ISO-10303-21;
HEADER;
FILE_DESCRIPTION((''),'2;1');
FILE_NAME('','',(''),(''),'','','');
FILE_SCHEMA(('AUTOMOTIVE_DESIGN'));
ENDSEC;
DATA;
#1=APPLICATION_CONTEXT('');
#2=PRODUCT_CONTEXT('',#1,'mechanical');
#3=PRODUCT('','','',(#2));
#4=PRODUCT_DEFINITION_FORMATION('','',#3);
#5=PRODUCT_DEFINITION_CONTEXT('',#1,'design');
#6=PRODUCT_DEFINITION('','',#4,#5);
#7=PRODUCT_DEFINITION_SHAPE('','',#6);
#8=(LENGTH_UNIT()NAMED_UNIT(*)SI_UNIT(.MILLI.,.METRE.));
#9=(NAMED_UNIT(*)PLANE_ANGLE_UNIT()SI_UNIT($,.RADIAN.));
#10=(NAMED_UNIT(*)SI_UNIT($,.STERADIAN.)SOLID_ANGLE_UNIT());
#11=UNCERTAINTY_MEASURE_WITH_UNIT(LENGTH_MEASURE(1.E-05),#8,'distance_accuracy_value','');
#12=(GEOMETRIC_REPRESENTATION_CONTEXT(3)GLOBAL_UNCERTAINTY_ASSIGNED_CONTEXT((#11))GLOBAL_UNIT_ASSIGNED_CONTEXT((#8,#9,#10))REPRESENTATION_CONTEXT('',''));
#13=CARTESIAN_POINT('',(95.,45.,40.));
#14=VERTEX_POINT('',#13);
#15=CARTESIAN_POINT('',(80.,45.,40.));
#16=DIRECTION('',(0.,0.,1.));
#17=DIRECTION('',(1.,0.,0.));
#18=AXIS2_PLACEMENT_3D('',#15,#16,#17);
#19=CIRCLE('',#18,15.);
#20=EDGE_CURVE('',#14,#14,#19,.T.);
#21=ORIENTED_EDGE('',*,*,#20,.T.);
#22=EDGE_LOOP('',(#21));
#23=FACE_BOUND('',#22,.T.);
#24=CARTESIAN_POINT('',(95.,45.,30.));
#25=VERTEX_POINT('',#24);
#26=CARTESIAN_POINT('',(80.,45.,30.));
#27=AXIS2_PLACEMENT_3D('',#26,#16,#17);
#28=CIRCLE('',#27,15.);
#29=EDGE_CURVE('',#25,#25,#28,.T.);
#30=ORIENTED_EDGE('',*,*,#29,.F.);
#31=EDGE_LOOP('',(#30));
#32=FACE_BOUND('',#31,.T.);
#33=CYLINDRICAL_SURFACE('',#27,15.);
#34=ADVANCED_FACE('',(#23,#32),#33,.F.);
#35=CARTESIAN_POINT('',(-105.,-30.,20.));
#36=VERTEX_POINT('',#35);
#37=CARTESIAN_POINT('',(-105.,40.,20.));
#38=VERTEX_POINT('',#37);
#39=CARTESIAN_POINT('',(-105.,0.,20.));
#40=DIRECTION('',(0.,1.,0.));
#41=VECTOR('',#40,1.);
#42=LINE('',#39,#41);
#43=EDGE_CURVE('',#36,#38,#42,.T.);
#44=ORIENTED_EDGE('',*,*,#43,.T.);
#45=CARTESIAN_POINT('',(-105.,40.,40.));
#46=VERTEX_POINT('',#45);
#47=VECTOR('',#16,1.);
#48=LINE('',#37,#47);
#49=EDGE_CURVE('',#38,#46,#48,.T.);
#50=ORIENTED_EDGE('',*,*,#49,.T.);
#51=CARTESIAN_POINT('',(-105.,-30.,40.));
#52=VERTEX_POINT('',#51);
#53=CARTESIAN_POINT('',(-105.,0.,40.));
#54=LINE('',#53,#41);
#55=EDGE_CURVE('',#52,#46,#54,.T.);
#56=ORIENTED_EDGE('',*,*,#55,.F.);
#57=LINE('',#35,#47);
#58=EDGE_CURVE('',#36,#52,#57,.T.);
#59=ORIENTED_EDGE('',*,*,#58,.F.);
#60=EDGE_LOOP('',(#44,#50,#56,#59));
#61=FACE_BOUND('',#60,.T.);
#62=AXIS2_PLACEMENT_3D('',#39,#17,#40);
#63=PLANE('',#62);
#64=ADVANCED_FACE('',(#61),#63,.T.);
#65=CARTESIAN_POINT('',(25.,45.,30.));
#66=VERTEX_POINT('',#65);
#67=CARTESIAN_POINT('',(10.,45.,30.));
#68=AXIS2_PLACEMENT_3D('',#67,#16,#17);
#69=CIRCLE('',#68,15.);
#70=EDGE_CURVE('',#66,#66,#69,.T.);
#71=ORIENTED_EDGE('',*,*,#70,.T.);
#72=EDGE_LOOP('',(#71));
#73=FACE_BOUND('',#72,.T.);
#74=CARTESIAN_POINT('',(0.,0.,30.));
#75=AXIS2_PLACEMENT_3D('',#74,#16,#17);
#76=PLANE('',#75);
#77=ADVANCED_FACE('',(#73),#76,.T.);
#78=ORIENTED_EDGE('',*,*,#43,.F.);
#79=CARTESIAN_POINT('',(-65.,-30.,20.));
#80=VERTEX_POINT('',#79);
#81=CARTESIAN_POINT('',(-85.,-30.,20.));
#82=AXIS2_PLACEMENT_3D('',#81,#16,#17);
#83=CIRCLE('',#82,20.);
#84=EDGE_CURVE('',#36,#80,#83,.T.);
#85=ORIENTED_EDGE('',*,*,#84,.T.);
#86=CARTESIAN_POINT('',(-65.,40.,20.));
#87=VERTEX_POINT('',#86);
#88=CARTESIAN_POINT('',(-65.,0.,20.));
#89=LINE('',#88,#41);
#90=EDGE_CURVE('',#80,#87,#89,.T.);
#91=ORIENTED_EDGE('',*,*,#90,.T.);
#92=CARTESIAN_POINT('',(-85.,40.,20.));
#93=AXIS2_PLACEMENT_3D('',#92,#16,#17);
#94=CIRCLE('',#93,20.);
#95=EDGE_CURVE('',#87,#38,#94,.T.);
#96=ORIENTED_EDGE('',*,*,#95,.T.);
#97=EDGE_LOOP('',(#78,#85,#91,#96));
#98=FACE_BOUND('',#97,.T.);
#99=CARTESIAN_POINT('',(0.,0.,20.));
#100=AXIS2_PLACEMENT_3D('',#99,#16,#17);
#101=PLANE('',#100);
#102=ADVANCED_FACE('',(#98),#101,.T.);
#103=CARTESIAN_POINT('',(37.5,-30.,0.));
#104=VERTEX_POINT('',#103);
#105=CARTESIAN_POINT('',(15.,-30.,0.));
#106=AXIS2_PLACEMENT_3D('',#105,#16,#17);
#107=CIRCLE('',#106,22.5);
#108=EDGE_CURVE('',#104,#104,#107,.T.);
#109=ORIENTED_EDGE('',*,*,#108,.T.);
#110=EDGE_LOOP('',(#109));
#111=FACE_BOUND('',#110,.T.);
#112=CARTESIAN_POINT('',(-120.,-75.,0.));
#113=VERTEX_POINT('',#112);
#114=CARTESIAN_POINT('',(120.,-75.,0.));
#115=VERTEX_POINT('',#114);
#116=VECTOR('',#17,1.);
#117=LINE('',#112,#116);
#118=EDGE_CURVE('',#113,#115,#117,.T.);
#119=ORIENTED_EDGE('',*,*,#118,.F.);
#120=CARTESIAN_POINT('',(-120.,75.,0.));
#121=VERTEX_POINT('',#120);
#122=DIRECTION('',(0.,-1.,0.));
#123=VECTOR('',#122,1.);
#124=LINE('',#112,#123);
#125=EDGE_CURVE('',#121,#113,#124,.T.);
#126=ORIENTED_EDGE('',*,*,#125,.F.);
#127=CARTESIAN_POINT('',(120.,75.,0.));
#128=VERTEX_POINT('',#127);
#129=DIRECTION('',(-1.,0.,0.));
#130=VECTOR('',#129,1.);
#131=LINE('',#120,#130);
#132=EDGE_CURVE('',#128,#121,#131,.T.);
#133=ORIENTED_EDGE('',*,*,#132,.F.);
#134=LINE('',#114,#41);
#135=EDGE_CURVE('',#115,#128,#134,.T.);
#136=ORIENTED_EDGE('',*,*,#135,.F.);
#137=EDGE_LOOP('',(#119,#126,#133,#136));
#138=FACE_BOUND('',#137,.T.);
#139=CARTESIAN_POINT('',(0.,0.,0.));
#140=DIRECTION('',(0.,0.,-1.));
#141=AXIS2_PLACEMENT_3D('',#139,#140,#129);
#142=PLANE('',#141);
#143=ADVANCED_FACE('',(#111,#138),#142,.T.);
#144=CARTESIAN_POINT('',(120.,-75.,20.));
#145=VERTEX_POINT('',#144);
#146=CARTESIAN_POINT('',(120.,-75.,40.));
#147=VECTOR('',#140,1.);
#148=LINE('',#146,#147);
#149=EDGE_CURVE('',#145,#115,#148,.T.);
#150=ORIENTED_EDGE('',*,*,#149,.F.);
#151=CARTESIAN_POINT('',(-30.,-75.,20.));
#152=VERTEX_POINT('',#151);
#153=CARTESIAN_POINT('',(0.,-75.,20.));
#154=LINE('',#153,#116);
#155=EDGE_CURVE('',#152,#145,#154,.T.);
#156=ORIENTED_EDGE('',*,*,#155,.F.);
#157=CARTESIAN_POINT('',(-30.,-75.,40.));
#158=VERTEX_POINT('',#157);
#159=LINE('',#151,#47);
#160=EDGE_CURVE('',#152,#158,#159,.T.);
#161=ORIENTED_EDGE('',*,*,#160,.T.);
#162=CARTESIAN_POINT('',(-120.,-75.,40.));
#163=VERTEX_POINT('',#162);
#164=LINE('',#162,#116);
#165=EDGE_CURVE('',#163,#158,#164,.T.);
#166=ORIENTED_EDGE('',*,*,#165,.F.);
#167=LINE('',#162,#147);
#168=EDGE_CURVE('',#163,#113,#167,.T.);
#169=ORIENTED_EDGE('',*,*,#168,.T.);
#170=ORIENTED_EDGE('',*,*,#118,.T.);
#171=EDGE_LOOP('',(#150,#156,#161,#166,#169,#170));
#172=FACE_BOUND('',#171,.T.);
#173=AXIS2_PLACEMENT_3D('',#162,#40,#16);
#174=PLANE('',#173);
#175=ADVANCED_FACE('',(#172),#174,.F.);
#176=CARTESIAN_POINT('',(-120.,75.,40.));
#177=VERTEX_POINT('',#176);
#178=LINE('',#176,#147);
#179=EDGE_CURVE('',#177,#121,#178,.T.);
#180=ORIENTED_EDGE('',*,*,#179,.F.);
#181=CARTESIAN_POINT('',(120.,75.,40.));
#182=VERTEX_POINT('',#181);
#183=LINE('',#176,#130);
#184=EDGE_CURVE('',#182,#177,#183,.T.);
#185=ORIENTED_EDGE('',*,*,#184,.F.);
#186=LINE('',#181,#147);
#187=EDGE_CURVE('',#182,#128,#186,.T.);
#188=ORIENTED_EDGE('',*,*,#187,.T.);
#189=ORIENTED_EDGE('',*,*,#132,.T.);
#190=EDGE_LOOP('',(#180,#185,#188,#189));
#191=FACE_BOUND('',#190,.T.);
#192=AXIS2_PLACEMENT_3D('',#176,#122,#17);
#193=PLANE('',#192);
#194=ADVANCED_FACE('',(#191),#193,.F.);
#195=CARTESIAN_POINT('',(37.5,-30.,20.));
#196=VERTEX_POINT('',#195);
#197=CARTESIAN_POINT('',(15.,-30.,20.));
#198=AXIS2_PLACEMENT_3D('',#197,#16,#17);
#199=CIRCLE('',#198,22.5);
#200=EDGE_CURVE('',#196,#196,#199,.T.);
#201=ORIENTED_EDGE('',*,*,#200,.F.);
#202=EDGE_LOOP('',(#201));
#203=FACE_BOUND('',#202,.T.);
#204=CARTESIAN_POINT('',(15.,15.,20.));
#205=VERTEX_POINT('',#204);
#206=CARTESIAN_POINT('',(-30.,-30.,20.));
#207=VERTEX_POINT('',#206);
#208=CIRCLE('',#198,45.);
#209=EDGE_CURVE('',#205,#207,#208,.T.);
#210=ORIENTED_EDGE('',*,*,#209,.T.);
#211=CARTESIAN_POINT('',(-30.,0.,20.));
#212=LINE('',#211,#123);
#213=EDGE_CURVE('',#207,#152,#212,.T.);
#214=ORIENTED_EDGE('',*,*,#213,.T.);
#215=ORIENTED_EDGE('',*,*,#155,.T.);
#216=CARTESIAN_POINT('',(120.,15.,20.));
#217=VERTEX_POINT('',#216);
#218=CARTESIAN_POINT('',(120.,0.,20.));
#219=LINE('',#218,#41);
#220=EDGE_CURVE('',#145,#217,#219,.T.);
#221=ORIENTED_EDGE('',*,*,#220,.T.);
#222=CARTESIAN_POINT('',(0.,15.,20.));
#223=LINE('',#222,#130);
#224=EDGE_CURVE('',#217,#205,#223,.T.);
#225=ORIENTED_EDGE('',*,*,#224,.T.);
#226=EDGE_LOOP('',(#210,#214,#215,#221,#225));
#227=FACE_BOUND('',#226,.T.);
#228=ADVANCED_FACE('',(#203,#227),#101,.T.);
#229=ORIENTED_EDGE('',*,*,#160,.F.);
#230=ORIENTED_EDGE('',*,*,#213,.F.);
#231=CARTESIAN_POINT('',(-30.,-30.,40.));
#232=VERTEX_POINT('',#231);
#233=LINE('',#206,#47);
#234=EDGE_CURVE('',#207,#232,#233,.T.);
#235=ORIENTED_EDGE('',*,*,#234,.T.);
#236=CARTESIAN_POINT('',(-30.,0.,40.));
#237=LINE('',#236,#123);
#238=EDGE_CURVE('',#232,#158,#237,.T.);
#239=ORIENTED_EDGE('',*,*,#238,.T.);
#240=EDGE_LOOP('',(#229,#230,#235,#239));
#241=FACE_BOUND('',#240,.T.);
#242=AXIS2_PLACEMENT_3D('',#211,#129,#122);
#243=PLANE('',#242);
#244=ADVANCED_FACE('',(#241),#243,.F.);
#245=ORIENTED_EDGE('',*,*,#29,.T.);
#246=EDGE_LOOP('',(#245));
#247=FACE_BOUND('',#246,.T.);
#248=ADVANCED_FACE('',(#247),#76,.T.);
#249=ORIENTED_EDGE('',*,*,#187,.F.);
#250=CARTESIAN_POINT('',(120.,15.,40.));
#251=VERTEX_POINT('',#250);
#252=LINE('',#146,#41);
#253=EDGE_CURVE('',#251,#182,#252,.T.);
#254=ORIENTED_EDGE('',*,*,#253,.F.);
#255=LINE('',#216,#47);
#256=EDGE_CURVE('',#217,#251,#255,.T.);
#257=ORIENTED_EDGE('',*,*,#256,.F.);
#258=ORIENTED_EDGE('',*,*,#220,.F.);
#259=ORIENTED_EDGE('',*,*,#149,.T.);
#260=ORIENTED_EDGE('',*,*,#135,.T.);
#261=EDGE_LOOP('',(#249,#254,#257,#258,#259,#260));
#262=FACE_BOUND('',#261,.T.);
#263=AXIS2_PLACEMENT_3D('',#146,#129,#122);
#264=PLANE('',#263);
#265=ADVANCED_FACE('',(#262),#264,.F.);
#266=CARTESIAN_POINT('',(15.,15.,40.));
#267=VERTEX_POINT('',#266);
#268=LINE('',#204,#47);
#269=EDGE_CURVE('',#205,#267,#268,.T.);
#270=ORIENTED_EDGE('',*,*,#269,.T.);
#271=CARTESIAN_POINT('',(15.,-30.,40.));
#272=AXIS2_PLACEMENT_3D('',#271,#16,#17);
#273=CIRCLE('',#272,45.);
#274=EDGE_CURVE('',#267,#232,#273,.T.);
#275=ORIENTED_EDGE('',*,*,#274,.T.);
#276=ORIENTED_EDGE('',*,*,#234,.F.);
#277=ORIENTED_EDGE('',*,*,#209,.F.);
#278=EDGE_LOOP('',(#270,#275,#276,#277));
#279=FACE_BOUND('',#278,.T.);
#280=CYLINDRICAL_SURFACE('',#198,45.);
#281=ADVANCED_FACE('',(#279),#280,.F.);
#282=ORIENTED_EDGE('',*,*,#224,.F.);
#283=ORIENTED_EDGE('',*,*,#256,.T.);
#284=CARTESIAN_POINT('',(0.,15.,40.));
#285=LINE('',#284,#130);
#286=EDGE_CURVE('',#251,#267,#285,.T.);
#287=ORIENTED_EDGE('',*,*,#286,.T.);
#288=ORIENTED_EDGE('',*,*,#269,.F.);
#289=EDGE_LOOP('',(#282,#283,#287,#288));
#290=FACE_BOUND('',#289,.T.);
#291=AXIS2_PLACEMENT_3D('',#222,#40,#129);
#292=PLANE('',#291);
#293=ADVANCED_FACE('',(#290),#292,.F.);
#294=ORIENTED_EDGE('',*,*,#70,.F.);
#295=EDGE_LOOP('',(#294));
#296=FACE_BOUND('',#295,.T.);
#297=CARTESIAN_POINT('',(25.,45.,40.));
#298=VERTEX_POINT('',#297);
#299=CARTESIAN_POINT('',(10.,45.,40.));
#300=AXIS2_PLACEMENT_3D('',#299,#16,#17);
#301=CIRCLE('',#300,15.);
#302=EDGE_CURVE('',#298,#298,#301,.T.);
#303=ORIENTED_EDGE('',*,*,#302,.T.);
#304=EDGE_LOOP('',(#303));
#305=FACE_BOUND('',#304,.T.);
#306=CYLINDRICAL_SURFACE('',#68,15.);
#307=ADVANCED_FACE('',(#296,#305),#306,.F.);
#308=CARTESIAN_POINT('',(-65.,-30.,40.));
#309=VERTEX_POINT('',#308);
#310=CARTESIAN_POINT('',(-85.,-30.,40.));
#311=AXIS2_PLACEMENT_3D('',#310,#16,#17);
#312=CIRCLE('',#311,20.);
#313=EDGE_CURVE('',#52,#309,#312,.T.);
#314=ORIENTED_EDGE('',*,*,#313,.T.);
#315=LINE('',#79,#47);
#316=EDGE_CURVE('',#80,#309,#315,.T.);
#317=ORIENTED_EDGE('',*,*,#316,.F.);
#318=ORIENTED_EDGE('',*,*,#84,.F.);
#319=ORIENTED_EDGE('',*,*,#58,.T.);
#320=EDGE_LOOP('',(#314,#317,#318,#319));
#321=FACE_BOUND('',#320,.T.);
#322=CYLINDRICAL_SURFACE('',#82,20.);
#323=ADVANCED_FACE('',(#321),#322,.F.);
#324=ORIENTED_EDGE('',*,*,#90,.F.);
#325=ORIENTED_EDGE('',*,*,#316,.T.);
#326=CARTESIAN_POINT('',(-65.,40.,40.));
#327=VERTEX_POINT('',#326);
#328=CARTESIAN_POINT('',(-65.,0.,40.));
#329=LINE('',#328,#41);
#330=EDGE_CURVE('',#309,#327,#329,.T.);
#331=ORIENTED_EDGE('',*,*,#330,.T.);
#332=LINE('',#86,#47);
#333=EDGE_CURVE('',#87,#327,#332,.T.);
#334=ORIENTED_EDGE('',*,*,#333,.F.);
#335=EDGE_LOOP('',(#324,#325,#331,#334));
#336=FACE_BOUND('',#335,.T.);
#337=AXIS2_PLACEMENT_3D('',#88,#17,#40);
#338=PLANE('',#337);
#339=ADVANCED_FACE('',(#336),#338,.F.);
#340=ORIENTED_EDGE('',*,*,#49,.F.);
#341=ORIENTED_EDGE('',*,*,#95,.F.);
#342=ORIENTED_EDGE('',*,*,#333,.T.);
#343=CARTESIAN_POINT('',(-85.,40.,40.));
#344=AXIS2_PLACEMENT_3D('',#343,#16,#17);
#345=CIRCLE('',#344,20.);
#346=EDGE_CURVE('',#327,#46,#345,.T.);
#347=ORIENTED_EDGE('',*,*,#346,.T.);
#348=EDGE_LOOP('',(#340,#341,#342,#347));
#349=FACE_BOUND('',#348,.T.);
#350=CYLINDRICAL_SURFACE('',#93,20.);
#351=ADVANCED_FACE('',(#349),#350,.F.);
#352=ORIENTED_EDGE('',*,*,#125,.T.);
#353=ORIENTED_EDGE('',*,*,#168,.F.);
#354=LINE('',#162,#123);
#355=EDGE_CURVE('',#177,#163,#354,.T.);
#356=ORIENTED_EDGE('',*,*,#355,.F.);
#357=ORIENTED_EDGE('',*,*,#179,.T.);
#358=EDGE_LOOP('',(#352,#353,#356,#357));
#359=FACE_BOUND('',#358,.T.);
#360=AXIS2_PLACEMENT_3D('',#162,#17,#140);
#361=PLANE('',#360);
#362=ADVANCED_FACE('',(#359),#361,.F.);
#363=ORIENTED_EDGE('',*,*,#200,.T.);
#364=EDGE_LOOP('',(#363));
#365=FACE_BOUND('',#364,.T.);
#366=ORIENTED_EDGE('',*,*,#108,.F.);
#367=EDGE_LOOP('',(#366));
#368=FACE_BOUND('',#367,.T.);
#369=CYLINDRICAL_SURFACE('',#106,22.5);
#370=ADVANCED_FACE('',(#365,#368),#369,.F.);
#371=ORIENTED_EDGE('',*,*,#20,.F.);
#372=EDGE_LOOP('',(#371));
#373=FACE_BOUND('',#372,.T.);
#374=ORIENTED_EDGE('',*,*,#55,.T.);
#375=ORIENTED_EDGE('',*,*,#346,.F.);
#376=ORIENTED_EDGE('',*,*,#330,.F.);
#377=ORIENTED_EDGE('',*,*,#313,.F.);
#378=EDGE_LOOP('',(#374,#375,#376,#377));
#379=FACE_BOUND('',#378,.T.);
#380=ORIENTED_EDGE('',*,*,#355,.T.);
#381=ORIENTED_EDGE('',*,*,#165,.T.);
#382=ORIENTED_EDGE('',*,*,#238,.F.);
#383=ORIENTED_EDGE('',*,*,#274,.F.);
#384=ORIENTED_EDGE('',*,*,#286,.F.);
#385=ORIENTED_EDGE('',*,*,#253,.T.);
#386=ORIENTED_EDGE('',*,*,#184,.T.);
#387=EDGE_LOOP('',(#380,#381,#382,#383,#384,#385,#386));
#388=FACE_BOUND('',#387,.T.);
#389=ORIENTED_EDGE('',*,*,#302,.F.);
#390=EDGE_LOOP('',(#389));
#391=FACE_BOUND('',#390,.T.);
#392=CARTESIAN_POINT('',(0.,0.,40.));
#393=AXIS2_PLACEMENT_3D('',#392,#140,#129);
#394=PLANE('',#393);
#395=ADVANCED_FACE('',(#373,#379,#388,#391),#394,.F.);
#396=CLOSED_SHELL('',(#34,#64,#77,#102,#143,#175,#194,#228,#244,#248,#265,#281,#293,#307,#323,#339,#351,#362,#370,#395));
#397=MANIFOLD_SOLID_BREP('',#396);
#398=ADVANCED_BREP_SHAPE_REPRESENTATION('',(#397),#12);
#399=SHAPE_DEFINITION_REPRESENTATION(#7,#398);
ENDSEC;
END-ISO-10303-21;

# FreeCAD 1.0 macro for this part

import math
import FreeCAD as App
import Part
import Sketcher
from FreeCAD import Vector


def add_polygon(sketch, points):
    """Adds a closed chain of lines whose ends are joined by coincident constraints."""
    first, n = sketch.GeometryCount, len(points)
    for a, b in zip(points, points[1:] + points[:1]):
        sketch.addGeometry(Part.LineSegment(App.Vector(*a, 0), App.Vector(*b, 0)), False)
    for i in range(n):
        sketch.addConstraint(Sketcher.Constraint("Coincident", first + i, 2, first + (i + 1) % n, 1))

doc = App.newDocument("Part")
params = doc.addObject("Spreadsheet::Sheet", "Params")
for row, (alias, value) in enumerate([
    ("sketch1_width", "240 mm"),
    ("sketch1_height", "150 mm"),
    ("pad1_length", "40 mm"),
    ("sketch2_radius", "20 mm"),
    ("sketch2_height", "70 mm"),
    ("pocket1_length", "20 mm"),
    ("sketch3_diameter", "30 mm"),
    ("pocket2_length", "10 mm"),
    ("sketch4_diameter", "45 mm"),
    ("sketch5_diameter", "45 mm"),
    ("sketch5_radius", "45 mm"),
    ("sketch5_width", "105 mm"),
    ("sketch5_height", "90 mm"),
    ("pocket4_length", "20 mm"),
], start=1):
    params.set(f"A{row}", alias)
    params.set(f"B{row}", "=" + value)
    params.setAlias(f"B{row}", alias)

body = doc.addObject("PartDesign::Body", "Body")

sketch1 = body.newObject("Sketcher::SketchObject", "Sketch")
sketch1.AttachmentSupport = (doc.getObject("XY_Plane"), [""])
sketch1.MapMode = "FlatFace"
add_polygon(sketch1, [(-120, 75), (-120, -75), (120, -75), (120, 75)])
sketch1.addConstraint([
    Sketcher.Constraint("Vertical", 0),
    Sketcher.Constraint("Horizontal", 1),
    Sketcher.Constraint("Vertical", 2),
    Sketcher.Constraint("Horizontal", 3),
    Sketcher.Constraint("Symmetric", 0, 2, 2, 2, -1, 1),
    Sketcher.Constraint("DistanceX", 1, 1, 1, 2, 240.0),
    Sketcher.Constraint("DistanceY", 0, 2, 0, 1, 150.0),
])
sketch1.setExpression("Constraints[9]", "Params.sketch1_width")
sketch1.setExpression("Constraints[10]", "Params.sketch1_height")
pad1 = body.newObject("PartDesign::Pad", "Pad")
pad1.Profile = sketch1
pad1.setExpression("Length", "Params.pad1_length")

sketch2 = body.newObject("Sketcher::SketchObject", "Sketch001")
sketch2.AttachmentSupport = (doc.getObject("XY_Plane"), [""])
sketch2.MapMode = "FlatFace"
sketch2.AttachmentOffset = App.Placement(Vector(0, 0, 40), App.Rotation())
sketch2.addGeometry([
    Part.LineSegment(Vector(-105, 40, 0), Vector(-105, -30, 0)),
    Part.ArcOfCircle(Part.Circle(Vector(-85, -30, 0), Vector(0, 0, 1), 20), math.radians(180), math.radians(360)),
    Part.LineSegment(Vector(-65, -30, 0), Vector(-65, 40, 0)),
    Part.ArcOfCircle(Part.Circle(Vector(-85, 40, 0), Vector(0, 0, 1), 20), math.radians(0), math.radians(180)),
], False)
sketch2.addConstraint([
    Sketcher.Constraint("Tangent", 0, 2, 1, 1),
    Sketcher.Constraint("Tangent", 1, 2, 2, 1),
    Sketcher.Constraint("Tangent", 2, 2, 3, 1),
    Sketcher.Constraint("Tangent", 3, 2, 0, 1),
    Sketcher.Constraint("Vertical", 0),
    Sketcher.Constraint("Vertical", 2),
    Sketcher.Constraint("Radius", 1, 20.0),
    Sketcher.Constraint("DistanceY", 0, 2, 0, 1, 70.0),
    Sketcher.Constraint("DistanceX", 1, 3, -1, 1, 85.0),
    Sketcher.Constraint("DistanceY", 1, 3, -1, 1, 30.0),
])
sketch2.setExpression("Constraints[6]", "Params.sketch2_radius")
sketch2.setExpression("Constraints[7]", "Params.sketch2_height")
pocket1 = body.newObject("PartDesign::Pocket", "Pocket")
pocket1.Profile = sketch2
pocket1.setExpression("Length", "Params.pocket1_length")

sketch3 = body.newObject("Sketcher::SketchObject", "Sketch002")
sketch3.AttachmentSupport = (doc.getObject("XY_Plane"), [""])
sketch3.MapMode = "FlatFace"
sketch3.AttachmentOffset = App.Placement(Vector(0, 0, 40), App.Rotation())
sketch3.addGeometry([
    Part.Circle(Vector(10, 45, 0), Vector(0, 0, 1), 15),
    Part.Circle(Vector(80, 45, 0), Vector(0, 0, 1), 15),
], False)
sketch3.addConstraint([
    Sketcher.Constraint("Equal", 0, 1),
    Sketcher.Constraint("Horizontal", 0, 3, 1, 3),
    Sketcher.Constraint("Diameter", 0, 30.0),
    Sketcher.Constraint("DistanceX", -1, 1, 0, 3, 10.0),
    Sketcher.Constraint("DistanceY", -1, 1, 0, 3, 45.0),
    Sketcher.Constraint("DistanceX", -1, 1, 1, 3, 80.0),
])
sketch3.setExpression("Constraints[2]", "Params.sketch3_diameter")
pocket2 = body.newObject("PartDesign::Pocket", "Pocket001")
pocket2.Profile = sketch3
pocket2.setExpression("Length", "Params.pocket2_length")

sketch4 = body.newObject("Sketcher::SketchObject", "Sketch003")
sketch4.AttachmentSupport = (doc.getObject("XY_Plane"), [""])
sketch4.MapMode = "FlatFace"
sketch4.AttachmentOffset = App.Placement(Vector(0, 0, 40), App.Rotation())
sketch4.addGeometry(Part.Circle(Vector(15, -30, 0), Vector(0, 0, 1), 22), False)
sketch4.addConstraint([
    Sketcher.Constraint("Diameter", 0, 45.0),
    Sketcher.Constraint("DistanceX", -1, 1, 0, 3, 15.0),
    Sketcher.Constraint("DistanceY", 0, 3, -1, 1, 30.0),
])
sketch4.setExpression("Constraints[0]", "Params.sketch4_diameter")
pocket3 = body.newObject("PartDesign::Pocket", "Pocket002")
pocket3.Profile = sketch4
pocket3.Type = "ThroughAll"

sketch5 = body.newObject("Sketcher::SketchObject", "Sketch004")
sketch5.AttachmentSupport = (doc.getObject("XY_Plane"), [""])
sketch5.MapMode = "FlatFace"
sketch5.AttachmentOffset = App.Placement(Vector(0, 0, 40), App.Rotation())
sketch5.addGeometry([
    Part.LineSegment(Vector(120, -75, 0), Vector(120, 15, 0)),
    Part.LineSegment(Vector(120, 15, 0), Vector(15, 15, 0)),
    Part.ArcOfCircle(Part.Circle(Vector(15, -30, 0), Vector(0, 0, 1), 45), math.radians(90), math.radians(180)),
    Part.LineSegment(Vector(-30, -30, 0), Vector(-30, -75, 0)),
    Part.LineSegment(Vector(-30, -75, 0), Vector(120, -75, 0)),
    Part.Circle(Vector(15, -30, 0), Vector(0, 0, 1), 22),
], False)
sketch5.addConstraint([
    Sketcher.Constraint("Coincident", 0, 2, 1, 1),
    Sketcher.Constraint("Tangent", 1, 2, 2, 1),
    Sketcher.Constraint("Tangent", 2, 2, 3, 1),
    Sketcher.Constraint("Coincident", 3, 2, 4, 1),
    Sketcher.Constraint("Coincident", 4, 2, 0, 1),
    Sketcher.Constraint("Vertical", 0),
    Sketcher.Constraint("Horizontal", 1),
    Sketcher.Constraint("Vertical", 3),
    Sketcher.Constraint("Horizontal", 4),
    Sketcher.Constraint("Coincident", 5, 3, 2, 3),
    Sketcher.Constraint("Diameter", 5, 45.0),
    Sketcher.Constraint("Radius", 2, 45.0),
    Sketcher.Constraint("DistanceX", 1, 2, 1, 1, 105.0),
    Sketcher.Constraint("DistanceY", 0, 1, 0, 2, 90.0),
    Sketcher.Constraint("DistanceX", -1, 1, 2, 3, 15.0),
    Sketcher.Constraint("DistanceY", 2, 3, -1, 1, 30.0),
])
sketch5.setExpression("Constraints[10]", "Params.sketch5_diameter")
sketch5.setExpression("Constraints[11]", "Params.sketch5_radius")
sketch5.setExpression("Constraints[12]", "Params.sketch5_width")
sketch5.setExpression("Constraints[13]", "Params.sketch5_height")
pocket4 = body.newObject("PartDesign::Pocket", "Pocket003")
pocket4.Profile = sketch5
pocket4.setExpression("Length", "Params.pocket4_length")

doc.recompute()
